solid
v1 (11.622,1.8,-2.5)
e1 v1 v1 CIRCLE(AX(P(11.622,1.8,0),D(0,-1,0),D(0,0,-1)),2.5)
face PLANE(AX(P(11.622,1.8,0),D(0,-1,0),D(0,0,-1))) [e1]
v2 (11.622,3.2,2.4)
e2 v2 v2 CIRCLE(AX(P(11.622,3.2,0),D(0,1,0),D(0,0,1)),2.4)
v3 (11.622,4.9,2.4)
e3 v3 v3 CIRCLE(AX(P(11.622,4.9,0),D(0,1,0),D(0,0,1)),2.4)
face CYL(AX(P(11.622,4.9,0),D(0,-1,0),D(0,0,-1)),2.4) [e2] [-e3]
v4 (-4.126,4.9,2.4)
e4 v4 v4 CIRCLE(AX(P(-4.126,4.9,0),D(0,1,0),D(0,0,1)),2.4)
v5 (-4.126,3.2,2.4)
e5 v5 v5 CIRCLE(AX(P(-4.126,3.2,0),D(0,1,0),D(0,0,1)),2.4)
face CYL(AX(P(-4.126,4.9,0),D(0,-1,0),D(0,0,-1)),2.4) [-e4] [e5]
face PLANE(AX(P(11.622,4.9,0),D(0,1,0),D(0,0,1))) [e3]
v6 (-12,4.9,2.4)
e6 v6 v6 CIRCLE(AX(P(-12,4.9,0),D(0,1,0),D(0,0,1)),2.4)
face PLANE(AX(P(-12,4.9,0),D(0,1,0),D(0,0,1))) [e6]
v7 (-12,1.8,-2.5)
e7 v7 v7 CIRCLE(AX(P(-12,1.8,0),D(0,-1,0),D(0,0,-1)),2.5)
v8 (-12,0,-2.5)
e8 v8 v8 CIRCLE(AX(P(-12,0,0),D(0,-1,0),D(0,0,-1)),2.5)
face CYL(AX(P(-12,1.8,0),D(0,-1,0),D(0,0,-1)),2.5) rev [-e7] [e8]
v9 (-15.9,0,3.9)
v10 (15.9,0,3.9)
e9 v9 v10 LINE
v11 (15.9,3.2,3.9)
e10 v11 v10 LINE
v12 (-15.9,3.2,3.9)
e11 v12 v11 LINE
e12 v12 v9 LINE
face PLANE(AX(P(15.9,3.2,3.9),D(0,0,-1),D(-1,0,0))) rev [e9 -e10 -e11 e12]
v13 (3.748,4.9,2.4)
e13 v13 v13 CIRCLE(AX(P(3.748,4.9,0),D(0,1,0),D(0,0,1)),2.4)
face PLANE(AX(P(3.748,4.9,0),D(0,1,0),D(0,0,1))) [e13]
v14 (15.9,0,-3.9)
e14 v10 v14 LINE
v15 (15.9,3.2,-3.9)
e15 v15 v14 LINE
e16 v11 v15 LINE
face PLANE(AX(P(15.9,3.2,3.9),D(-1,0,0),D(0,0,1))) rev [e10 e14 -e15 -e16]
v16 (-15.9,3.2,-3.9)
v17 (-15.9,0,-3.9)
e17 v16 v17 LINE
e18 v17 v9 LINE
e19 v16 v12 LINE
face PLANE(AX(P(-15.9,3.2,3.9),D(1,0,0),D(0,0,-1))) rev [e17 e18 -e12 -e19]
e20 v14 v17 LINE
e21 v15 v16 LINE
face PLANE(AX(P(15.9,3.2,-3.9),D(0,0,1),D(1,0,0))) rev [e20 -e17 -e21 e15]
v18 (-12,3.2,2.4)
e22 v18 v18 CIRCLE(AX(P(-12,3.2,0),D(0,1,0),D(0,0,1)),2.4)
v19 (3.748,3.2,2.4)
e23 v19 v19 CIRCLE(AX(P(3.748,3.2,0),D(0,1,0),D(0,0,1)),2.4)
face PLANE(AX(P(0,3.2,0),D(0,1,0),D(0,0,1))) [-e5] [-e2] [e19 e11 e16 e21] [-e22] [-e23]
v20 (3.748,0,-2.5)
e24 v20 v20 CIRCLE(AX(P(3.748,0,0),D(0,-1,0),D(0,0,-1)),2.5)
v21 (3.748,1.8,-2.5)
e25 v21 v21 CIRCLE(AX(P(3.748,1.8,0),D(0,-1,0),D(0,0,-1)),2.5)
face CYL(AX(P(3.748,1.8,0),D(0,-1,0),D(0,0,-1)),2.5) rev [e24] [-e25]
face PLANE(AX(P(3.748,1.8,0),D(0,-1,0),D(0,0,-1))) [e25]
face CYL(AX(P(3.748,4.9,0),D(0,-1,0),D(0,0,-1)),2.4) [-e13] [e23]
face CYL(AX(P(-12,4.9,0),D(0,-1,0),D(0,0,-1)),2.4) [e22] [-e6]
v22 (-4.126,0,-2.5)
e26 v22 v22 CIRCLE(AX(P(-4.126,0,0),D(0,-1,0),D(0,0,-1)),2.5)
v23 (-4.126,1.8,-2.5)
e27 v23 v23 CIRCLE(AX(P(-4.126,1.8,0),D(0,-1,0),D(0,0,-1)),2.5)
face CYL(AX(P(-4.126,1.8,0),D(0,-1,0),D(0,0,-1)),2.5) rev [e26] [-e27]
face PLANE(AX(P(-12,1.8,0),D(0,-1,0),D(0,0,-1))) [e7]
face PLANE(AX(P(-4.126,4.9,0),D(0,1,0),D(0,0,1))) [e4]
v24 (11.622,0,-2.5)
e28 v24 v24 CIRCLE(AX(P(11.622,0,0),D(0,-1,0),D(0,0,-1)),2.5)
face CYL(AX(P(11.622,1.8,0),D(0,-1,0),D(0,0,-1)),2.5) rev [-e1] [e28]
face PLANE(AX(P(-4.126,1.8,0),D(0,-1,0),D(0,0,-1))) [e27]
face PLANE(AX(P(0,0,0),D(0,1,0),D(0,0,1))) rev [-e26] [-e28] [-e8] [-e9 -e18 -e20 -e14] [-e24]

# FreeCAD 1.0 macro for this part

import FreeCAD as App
import Part
import Sketcher
from FreeCAD import Vector
Q = App.Units.Quantity


def add_polygon(sketch, points):
    """Adds a closed chain of lines whose ends are joined by coincident constraints."""
    first, n = sketch.GeometryCount, len(points)
    for a, b in zip(points, points[1:] + points[:1]):
        sketch.addGeometry(Part.LineSegment(App.Vector(*a, 0), App.Vector(*b, 0)), False)
    for i in range(n):
        sketch.addConstraint(Sketcher.Constraint("Coincident", first + i, 2, first + (i + 1) % n, 1))

doc = App.newDocument("Part")
body = doc.addObject("PartDesign::Body", "Body")

sketch1 = doc.addObject("Sketcher::SketchObject", "Sketch")
body.addObject(sketch1)
sketch1.AttachmentSupport = (doc.XZ_Plane, [""])
sketch1.MapMode = "FlatFace"
add_polygon(sketch1, [(-16, -4), (-16, 4), (16, 4), (16, -4)])
sketch1.addConstraint(Sketcher.Constraint("Vertical", 0))
sketch1.addConstraint(Sketcher.Constraint("Horizontal", 1))
sketch1.addConstraint(Sketcher.Constraint("Vertical", 2))
sketch1.addConstraint(Sketcher.Constraint("Horizontal", 3))
sketch1.addConstraint(Sketcher.Constraint("Symmetric", 0, 2, 2, 2, -1, 1))
sketch1.addConstraint(Sketcher.Constraint("DistanceX", 1, 1, 1, 2, Q("31.8 mm")))
sketch1.addConstraint(Sketcher.Constraint("DistanceY", 0, 1, 0, 2, Q("7.8 mm")))
pad1 = doc.addObject("PartDesign::Pad", "Pad")
body.addObject(pad1)
pad1.Profile = sketch1
pad1.Length = 3.2
pad1.Reversed = True

sketch2 = doc.addObject("Sketcher::SketchObject", "Sketch001")
body.addObject(sketch2)
sketch2.AttachmentSupport = (doc.XZ_Plane, [""])
sketch2.MapMode = "FlatFace"
sketch2.AttachmentOffset = App.Placement(Vector(0, 0, -3.2), App.Rotation())
sketch2.addGeometry(Part.Circle(Vector(-12, 0, 0), Vector(0, 0, 1), 2.4), False)
sketch2.addGeometry(Part.Circle(Vector(-4.1, 0, 0), Vector(0, 0, 1), 2.4), False)
sketch2.addGeometry(Part.Circle(Vector(3.7, 0, 0), Vector(0, 0, 1), 2.4), False)
sketch2.addGeometry(Part.Circle(Vector(11.6, 0, 0), Vector(0, 0, 1), 2.4), False)
sketch2.addConstraint(Sketcher.Constraint("Equal", 0, 1))
sketch2.addConstraint(Sketcher.Constraint("Equal", 1, 2))
sketch2.addConstraint(Sketcher.Constraint("Equal", 2, 3))
sketch2.addConstraint(Sketcher.Constraint("PointOnObject", 0, 3, -1))
sketch2.addConstraint(Sketcher.Constraint("PointOnObject", 1, 3, -1))
sketch2.addConstraint(Sketcher.Constraint("PointOnObject", 2, 3, -1))
sketch2.addConstraint(Sketcher.Constraint("PointOnObject", 3, 3, -1))
sketch2.addConstraint(Sketcher.Constraint("Diameter", 0, Q("4.8 mm")))
sketch2.addConstraint(Sketcher.Constraint("DistanceX", 0, 3, -1, 1, Q("12 mm")))
sketch2.addConstraint(Sketcher.Constraint("DistanceX", 1, 3, -1, 1, Q("4.126 mm")))
sketch2.addConstraint(Sketcher.Constraint("DistanceX", -1, 1, 2, 3, Q("3.748 mm")))
sketch2.addConstraint(Sketcher.Constraint("DistanceX", -1, 1, 3, 3, Q("11.622 mm")))
pad2 = doc.addObject("PartDesign::Pad", "Pad001")
body.addObject(pad2)
pad2.Profile = sketch2
pad2.Length = 1.7
pad2.Reversed = True

sketch3 = doc.addObject("Sketcher::SketchObject", "Sketch002")
body.addObject(sketch3)
sketch3.AttachmentSupport = (doc.XZ_Plane, [""])
sketch3.MapMode = "FlatFace"
sketch3.addGeometry(Part.Circle(Vector(-12, 0, 0), Vector(0, 0, 1), 2.5), False)
sketch3.addGeometry(Part.Circle(Vector(-4.1, 0, 0), Vector(0, 0, 1), 2.5), False)
sketch3.addGeometry(Part.Circle(Vector(3.7, 0, 0), Vector(0, 0, 1), 2.5), False)
sketch3.addGeometry(Part.Circle(Vector(11.6, 0, 0), Vector(0, 0, 1), 2.5), False)
sketch3.addConstraint(Sketcher.Constraint("Equal", 0, 1))
sketch3.addConstraint(Sketcher.Constraint("Equal", 1, 2))
sketch3.addConstraint(Sketcher.Constraint("Equal", 2, 3))
sketch3.addConstraint(Sketcher.Constraint("PointOnObject", 0, 3, -1))
sketch3.addConstraint(Sketcher.Constraint("PointOnObject", 1, 3, -1))
sketch3.addConstraint(Sketcher.Constraint("PointOnObject", 2, 3, -1))
sketch3.addConstraint(Sketcher.Constraint("PointOnObject", 3, 3, -1))
sketch3.addConstraint(Sketcher.Constraint("Diameter", 0, Q("5 mm")))
sketch3.addConstraint(Sketcher.Constraint("DistanceX", 0, 3, -1, 1, Q("12 mm")))
sketch3.addConstraint(Sketcher.Constraint("DistanceX", 1, 3, -1, 1, Q("4.126 mm")))
sketch3.addConstraint(Sketcher.Constraint("DistanceX", -1, 1, 2, 3, Q("3.748 mm")))
sketch3.addConstraint(Sketcher.Constraint("DistanceX", -1, 1, 3, 3, Q("11.622 mm")))
pocket1 = doc.addObject("PartDesign::Pocket", "Pocket")
body.addObject(pocket1)
pocket1.Profile = sketch3
pocket1.Length = 1.8

doc.recompute()
